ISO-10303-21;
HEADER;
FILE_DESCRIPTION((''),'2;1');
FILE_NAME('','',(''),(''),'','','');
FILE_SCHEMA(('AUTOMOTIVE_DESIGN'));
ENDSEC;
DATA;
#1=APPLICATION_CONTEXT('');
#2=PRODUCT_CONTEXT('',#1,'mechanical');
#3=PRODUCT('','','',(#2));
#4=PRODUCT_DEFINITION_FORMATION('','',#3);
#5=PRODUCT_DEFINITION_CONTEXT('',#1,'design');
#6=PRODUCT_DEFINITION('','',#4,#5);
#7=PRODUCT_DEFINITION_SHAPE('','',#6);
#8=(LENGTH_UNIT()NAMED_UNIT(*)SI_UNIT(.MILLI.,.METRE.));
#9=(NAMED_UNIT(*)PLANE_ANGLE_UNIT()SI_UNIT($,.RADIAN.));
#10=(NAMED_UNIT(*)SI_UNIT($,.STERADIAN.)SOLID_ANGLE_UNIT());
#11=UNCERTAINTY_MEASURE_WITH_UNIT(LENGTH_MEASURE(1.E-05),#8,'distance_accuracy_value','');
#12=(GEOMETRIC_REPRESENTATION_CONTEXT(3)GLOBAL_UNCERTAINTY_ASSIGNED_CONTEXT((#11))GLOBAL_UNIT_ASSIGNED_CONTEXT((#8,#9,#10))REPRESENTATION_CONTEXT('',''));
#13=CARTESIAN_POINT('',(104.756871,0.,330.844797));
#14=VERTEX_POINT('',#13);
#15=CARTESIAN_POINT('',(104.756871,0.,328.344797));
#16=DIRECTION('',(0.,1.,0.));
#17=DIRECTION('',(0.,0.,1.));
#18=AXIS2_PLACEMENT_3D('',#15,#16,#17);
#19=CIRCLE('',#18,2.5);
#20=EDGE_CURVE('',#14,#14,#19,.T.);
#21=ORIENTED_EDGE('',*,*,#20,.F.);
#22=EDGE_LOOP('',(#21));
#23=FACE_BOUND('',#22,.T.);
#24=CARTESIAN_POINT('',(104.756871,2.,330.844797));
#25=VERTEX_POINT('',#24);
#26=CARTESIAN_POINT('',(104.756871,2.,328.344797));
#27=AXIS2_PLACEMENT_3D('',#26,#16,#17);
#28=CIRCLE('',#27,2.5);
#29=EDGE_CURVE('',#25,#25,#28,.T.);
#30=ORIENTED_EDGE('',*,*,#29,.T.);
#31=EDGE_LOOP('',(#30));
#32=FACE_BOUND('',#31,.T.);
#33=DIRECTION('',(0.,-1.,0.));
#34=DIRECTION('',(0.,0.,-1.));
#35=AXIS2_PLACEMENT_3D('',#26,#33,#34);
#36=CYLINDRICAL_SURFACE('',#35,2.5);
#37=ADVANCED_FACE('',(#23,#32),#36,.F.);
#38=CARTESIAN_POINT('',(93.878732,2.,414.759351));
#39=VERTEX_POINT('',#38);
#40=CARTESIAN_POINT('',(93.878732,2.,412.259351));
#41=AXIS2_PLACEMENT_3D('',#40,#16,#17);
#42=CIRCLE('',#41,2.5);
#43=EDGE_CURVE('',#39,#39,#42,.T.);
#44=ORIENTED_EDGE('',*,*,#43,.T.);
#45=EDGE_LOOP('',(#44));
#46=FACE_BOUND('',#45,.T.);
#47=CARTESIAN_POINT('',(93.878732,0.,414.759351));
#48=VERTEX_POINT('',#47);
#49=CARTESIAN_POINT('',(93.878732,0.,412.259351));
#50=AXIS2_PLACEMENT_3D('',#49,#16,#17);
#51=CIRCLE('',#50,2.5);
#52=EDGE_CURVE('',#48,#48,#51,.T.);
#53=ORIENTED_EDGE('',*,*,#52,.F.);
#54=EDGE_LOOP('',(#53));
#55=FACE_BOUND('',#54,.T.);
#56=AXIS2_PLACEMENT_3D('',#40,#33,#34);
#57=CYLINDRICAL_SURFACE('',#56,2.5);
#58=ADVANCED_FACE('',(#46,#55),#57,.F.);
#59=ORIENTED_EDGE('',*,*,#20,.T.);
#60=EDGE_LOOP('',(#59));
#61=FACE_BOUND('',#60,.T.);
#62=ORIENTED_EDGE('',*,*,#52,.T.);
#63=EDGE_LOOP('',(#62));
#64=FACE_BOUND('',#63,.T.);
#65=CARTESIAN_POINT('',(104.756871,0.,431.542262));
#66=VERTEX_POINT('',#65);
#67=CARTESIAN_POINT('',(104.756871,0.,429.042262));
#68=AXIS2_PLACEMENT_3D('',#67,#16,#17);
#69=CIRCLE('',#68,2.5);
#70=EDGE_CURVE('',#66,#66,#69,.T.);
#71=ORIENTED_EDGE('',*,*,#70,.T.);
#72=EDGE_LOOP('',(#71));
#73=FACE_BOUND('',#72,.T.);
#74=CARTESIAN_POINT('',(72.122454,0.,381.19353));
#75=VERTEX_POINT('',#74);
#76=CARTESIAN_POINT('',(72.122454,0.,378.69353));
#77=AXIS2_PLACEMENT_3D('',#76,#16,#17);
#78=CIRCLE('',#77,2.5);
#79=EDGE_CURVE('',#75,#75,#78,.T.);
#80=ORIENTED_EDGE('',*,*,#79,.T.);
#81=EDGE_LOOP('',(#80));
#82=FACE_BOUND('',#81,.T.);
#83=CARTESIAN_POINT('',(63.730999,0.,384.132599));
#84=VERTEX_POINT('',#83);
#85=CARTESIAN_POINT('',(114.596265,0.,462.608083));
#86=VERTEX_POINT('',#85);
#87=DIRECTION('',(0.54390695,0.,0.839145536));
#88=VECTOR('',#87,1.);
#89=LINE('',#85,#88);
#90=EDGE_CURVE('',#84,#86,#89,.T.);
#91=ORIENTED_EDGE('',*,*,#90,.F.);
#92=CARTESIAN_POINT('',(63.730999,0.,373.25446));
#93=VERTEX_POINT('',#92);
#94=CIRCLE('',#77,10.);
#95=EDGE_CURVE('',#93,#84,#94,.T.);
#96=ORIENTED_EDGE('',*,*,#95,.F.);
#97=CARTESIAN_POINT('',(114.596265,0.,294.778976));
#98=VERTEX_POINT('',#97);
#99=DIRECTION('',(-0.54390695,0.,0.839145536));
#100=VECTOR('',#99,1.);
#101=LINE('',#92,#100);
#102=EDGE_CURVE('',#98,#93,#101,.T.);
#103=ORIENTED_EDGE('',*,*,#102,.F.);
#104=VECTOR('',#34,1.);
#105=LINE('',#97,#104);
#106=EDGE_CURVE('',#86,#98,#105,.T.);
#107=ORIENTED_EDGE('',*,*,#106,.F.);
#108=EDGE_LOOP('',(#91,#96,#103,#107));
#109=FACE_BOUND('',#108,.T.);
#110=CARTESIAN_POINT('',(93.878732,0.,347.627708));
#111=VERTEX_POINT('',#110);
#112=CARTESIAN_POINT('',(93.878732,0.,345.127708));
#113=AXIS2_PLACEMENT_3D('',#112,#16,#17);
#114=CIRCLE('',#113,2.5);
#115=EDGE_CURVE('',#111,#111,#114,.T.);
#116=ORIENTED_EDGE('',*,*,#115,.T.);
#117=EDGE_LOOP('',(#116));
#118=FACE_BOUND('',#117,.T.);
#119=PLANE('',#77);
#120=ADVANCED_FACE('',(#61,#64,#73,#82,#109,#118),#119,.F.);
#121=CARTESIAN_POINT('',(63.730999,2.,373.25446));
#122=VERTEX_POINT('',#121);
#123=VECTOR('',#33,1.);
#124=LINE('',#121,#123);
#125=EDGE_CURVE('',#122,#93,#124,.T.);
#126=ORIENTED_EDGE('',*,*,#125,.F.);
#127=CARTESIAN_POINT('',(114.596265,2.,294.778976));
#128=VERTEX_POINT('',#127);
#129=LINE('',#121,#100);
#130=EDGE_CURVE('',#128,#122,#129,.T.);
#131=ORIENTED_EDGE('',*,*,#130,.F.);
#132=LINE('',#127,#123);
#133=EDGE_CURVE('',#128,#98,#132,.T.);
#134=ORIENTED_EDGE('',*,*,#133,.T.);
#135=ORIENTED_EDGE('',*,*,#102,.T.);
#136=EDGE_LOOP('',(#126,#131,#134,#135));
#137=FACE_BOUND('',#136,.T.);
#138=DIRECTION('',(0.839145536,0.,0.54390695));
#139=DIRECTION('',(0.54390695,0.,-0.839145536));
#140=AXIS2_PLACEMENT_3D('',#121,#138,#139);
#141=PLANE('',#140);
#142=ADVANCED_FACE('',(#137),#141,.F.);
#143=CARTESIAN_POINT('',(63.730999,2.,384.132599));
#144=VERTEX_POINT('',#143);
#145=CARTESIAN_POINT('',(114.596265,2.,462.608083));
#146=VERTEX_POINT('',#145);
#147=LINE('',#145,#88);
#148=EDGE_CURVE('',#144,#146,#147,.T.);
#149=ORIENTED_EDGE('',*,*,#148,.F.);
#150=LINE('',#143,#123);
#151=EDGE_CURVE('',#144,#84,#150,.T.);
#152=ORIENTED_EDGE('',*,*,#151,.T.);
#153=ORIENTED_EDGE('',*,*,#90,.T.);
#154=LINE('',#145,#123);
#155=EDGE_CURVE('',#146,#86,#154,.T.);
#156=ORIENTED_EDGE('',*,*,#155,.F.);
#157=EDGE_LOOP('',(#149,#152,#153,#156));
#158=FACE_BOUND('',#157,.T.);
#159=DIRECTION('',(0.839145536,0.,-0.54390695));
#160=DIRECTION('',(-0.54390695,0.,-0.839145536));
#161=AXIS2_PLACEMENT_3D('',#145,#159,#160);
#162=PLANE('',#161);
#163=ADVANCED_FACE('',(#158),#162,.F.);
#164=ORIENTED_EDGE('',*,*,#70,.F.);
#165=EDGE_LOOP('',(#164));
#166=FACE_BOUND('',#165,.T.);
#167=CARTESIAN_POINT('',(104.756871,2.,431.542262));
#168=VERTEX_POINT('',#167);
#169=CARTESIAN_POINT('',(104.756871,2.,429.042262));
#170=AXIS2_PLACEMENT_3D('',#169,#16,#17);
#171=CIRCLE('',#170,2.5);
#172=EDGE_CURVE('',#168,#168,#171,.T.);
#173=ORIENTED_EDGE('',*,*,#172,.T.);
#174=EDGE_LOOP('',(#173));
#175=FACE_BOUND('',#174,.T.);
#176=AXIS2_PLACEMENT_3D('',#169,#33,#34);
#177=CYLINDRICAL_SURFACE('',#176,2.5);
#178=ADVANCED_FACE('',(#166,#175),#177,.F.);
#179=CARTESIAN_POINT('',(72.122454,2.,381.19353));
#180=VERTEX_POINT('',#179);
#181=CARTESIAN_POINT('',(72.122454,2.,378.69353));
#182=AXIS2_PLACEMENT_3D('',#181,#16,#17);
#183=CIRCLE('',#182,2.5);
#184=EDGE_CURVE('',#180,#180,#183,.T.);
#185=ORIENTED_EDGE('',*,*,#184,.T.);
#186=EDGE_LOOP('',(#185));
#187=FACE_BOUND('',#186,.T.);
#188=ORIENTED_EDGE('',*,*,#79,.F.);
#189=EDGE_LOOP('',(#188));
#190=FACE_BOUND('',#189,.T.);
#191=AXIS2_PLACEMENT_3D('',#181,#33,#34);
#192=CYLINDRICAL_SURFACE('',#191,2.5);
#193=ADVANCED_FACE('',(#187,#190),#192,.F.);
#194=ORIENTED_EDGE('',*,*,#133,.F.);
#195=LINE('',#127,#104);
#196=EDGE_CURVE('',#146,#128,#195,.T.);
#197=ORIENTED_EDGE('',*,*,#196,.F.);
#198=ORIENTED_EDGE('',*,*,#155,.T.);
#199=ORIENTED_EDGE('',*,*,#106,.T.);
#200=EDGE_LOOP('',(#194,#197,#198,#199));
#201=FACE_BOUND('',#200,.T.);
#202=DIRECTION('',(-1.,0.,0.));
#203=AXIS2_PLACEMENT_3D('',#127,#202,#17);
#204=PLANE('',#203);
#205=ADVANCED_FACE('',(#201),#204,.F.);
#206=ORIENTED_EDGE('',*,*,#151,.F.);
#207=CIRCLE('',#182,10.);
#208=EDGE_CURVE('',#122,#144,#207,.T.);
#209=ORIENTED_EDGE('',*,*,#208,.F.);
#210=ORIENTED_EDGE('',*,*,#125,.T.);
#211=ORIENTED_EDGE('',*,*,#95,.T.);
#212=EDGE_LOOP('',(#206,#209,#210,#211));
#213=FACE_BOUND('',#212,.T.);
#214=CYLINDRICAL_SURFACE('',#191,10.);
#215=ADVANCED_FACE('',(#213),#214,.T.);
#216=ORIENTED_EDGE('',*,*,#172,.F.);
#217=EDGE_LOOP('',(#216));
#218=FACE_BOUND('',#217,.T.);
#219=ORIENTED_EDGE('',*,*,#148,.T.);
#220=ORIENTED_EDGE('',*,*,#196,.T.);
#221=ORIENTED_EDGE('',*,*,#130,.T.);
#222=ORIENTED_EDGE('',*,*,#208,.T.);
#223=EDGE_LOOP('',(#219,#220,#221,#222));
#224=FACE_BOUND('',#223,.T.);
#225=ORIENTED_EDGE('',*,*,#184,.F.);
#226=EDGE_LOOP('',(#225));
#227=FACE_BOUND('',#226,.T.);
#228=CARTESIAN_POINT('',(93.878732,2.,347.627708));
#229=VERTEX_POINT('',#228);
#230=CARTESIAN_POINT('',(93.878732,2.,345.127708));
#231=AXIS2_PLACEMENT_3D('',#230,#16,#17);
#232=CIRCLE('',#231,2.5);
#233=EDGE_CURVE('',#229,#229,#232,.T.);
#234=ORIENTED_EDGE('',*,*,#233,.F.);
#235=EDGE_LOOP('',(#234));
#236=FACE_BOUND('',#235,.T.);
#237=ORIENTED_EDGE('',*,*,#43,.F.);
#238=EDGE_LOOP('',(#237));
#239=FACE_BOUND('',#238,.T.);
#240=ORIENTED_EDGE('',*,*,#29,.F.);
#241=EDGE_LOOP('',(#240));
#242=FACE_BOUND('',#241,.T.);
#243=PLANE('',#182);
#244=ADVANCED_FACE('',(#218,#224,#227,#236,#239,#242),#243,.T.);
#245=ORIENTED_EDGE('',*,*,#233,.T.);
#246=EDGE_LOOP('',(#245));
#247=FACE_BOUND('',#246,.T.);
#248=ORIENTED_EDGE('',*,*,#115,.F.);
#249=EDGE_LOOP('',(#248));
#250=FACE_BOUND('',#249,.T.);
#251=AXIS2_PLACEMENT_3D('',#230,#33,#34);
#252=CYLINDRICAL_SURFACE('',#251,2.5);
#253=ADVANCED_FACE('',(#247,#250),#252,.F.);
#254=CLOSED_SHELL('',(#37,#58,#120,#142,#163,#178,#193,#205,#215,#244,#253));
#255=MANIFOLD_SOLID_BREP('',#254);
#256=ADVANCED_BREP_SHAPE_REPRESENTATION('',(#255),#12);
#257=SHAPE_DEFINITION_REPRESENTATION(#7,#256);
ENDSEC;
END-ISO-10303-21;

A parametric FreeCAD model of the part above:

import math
import FreeCAD as App
import Part
import Sketcher

V = App.Vector
Q = App.Units.Quantity

doc = App.newDocument("Part")
body = doc.addObject("PartDesign::Body", "Body")

sketch1 = body.newObject("Sketcher::SketchObject", "Sketch")
sketch1.AttachmentSupport = (doc.getObject("XZ_Plane"), [""])
sketch1.MapMode = "FlatFace"
sketch1.addGeometry([
    Part.LineSegment(V(114.6, 294.8, 0), V(63.7, 373.3, 0)),
    Part.ArcOfCircle(Part.Circle(V(72.1, 378.7, 0), V(0, 0, 1), 10), math.radians(147), math.radians(213)),
    Part.LineSegment(V(63.7, 384.1, 0), V(114.6, 462.6, 0)),
    Part.LineSegment(V(114.6, 462.6, 0), V(114.6, 294.8, 0)),
    Part.Circle(V(104.8, 429, 0), V(0, 0, 1), 2.5),
    Part.Circle(V(93.9, 412.3, 0), V(0, 0, 1), 2.5),
    Part.Circle(V(104.8, 328.3, 0), V(0, 0, 1), 2.5),
    Part.Circle(V(93.9, 345.1, 0), V(0, 0, 1), 2.5),
    Part.Circle(V(72.1, 378.7, 0), V(0, 0, 1), 2.5),
], False)
sketch1.addConstraint([
    Sketcher.Constraint("Tangent", 0, 2, 1, 2),
    Sketcher.Constraint("Tangent", 1, 1, 2, 1),
    Sketcher.Constraint("Coincident", 2, 2, 3, 1),
    Sketcher.Constraint("Coincident", 3, 2, 0, 1),
    Sketcher.Constraint("Vertical", 3),
    Sketcher.Constraint("Coincident", 8, 3, 1, 3),
    Sketcher.Constraint("Equal", 4, 5),
    Sketcher.Constraint("Equal", 5, 6),
    Sketcher.Constraint("Equal", 6, 7),
    Sketcher.Constraint("Equal", 7, 8),
    Sketcher.Constraint("Vertical", 4, 3, 6, 3),
    Sketcher.Constraint("Vertical", 5, 3, 7, 3),
    Sketcher.Constraint("Vertical", 0, 2, 1, 1),
    Sketcher.Constraint("Diameter", 4, 5.0),
    Sketcher.Constraint("Radius", 1, 10.0),
    Sketcher.Constraint("Angle", 0, Q("122.95 deg")),
    Sketcher.Constraint("DistanceX", -1, 1, 0, 2, 63.730999),
    Sketcher.Constraint("DistanceY", -1, 1, 1, 1, 384.132599),
    Sketcher.Constraint("DistanceY", 3, 2, 3, 1, 167.829107),
    Sketcher.Constraint("DistanceX", -1, 1, 4, 3, 104.756871),
    Sketcher.Constraint("DistanceY", -1, 1, 4, 3, 429.042262),
    Sketcher.Constraint("DistanceY", -1, 1, 5, 3, 412.259351),
    Sketcher.Constraint("DistanceY", -1, 1, 7, 3, 345.127708),
    Sketcher.Constraint("DistanceX", 5, 3, 4, 3, 10.878139),
    Sketcher.Constraint("DistanceY", 6, 3, 7, 3, 16.782911),
])
pad1 = body.newObject("PartDesign::Pad", "Pad")
pad1.Profile = sketch1
pad1.Length = 2
pad1.Reversed = True

doc.recompute()
